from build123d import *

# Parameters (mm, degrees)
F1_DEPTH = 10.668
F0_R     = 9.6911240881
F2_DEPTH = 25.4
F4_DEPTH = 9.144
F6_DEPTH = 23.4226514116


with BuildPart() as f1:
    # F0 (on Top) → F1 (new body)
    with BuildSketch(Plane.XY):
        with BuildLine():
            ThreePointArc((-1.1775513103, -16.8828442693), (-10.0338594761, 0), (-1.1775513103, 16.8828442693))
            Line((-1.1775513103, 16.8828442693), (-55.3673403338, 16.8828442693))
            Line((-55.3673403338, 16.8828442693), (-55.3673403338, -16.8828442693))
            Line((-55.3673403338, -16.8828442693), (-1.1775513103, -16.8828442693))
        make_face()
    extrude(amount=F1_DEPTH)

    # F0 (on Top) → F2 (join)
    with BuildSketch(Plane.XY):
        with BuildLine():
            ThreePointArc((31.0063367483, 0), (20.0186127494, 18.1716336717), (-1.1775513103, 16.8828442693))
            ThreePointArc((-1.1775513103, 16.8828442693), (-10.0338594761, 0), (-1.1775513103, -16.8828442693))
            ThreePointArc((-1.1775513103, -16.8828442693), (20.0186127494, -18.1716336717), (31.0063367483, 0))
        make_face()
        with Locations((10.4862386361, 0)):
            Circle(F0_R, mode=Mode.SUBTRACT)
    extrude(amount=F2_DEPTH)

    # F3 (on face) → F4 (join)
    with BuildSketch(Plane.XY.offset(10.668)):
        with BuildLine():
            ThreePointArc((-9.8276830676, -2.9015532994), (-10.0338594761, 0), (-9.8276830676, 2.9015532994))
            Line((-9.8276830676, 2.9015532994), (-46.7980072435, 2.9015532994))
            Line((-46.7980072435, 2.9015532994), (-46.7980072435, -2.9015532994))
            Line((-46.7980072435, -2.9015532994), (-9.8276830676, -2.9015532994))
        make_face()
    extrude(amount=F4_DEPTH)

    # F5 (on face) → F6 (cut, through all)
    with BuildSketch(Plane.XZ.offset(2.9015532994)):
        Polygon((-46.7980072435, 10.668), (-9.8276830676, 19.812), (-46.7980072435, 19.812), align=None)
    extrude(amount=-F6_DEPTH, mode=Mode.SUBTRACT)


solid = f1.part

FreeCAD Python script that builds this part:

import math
import FreeCAD as App
import Part
import Sketcher
from FreeCAD import Vector
Q = App.Units.Quantity


def add_polygon(sketch, points):
    """Adds a closed chain of lines whose ends are joined by coincident constraints."""
    first, n = sketch.GeometryCount, len(points)
    for a, b in zip(points, points[1:] + points[:1]):
        sketch.addGeometry(Part.LineSegment(App.Vector(*a, 0), App.Vector(*b, 0)), False)
    for i in range(n):
        sketch.addConstraint(Sketcher.Constraint("Coincident", first + i, 2, first + (i + 1) % n, 1))

doc = App.newDocument("Part")
params = doc.addObject("Spreadsheet::Sheet", "Params")
for row, (alias, value) in enumerate([
    ("pad1_length", "0.42 in"),
    ("pad2_length", "1 in"),
    ("pad3_length", "0.36 in"),
    ("sketch4_height", "0.36 in"),
], start=1):
    params.set(f"A{row}", alias)
    params.set(f"B{row}", "=" + value)
    params.setAlias(f"B{row}", alias)

body = doc.addObject("PartDesign::Body", "Body")

# Sketch on XY plane
sketch1 = doc.addObject("Sketcher::SketchObject", "Sketch")
body.addObject(sketch1)
sketch1.AttachmentSupport = (doc.XY_Plane, [""])
sketch1.MapMode = "FlatFace"
sketch1.addGeometry([
    Part.ArcOfCircle(Part.Circle(Vector(10.486239, 0, 0), Vector(0, 0, 1), 20.520098), math.radians(124.639292), math.radians(235.360708)),
    Part.LineSegment(Vector(-1.177551, 16.882844, 0), Vector(-55.36734, 16.882844, 0)),
    Part.LineSegment(Vector(-55.36734, 16.882844, 0), Vector(-55.36734, -16.882844, 0)),
    Part.LineSegment(Vector(-55.36734, -16.882844, 0), Vector(-1.177551, -16.882844, 0)),
], False)
sketch1.addConstraint([
    Sketcher.Constraint("Coincident", 0, 1, 1, 1),
    Sketcher.Constraint("Coincident", 1, 2, 2, 1),
    Sketcher.Constraint("Coincident", 2, 2, 3, 1),
    Sketcher.Constraint("Coincident", 3, 2, 0, 2),
    Sketcher.Constraint("Horizontal", 1),
    Sketcher.Constraint("Vertical", 2),
    Sketcher.Constraint("Horizontal", 3),
    Sketcher.Constraint("Symmetric", 0, 1, 3, 2, -1),
    Sketcher.Constraint("Radius", 0, 20.520098),
    Sketcher.Constraint("DistanceX", 1, 2, 1, 1, 54.189789),
    Sketcher.Constraint("DistanceY", 2, 2, 2, 1, 33.765689),
    Sketcher.Constraint("DistanceX", -1, 1, 0, 3, 10.486239),
])
pad1 = doc.addObject("PartDesign::Pad", "Pad")
body.addObject(pad1)
pad1.Profile = sketch1
pad1.setExpression("Length", "Params.pad1_length")

# Sketch on XY plane
sketch2 = doc.addObject("Sketcher::SketchObject", "Sketch001")
body.addObject(sketch2)
sketch2.AttachmentSupport = (doc.XY_Plane, [""])
sketch2.MapMode = "FlatFace"
sketch2.addGeometry([
    Part.ArcOfCircle(Part.Circle(Vector(10.486239, 0, 0), Vector(0, 0, 1), 20.520098), math.radians(124.639292), math.radians(235.360708)),
    Part.ArcOfCircle(Part.Circle(Vector(10.486239, 0, 0), Vector(0, 0, 1), 20.520098), math.radians(-124.639292), math.radians(124.639292)),
    Part.Circle(Vector(10.486239, 0, 0), Vector(0, 0, 1), 9.691124),
], False)
sketch2.addConstraint([
    Sketcher.Constraint("Tangent", 0, 1, 1, 2),
    Sketcher.Constraint("Coincident", 1, 1, 0, 2),
    Sketcher.Constraint("Coincident", 2, 3, 0, 3),
    Sketcher.Constraint("Symmetric", 0, 1, 1, 1, -1),
    Sketcher.Constraint("Radius", 0, 20.520098),
    Sketcher.Constraint("Diameter", 2, 19.382248),
    Sketcher.Constraint("DistanceX", -1, 1, 0, 3, 10.486239),
    Sketcher.Constraint("DistanceX", 0, 1, -1, 1, 1.177551),
])
pad2 = doc.addObject("PartDesign::Pad", "Pad001")
body.addObject(pad2)
pad2.Profile = sketch2
pad2.setExpression("Length", "Params.pad2_length")

# Sketch on XY plane
sketch3 = doc.addObject("Sketcher::SketchObject", "Sketch002")
body.addObject(sketch3)
sketch3.AttachmentSupport = (doc.XY_Plane, [""])
sketch3.MapMode = "FlatFace"
sketch3.AttachmentOffset = App.Placement(Vector(0, 0, 0.42 * 25.4), App.Rotation())
sketch3.addGeometry([
    Part.ArcOfCircle(Part.Circle(Vector(10.486239, 0, 0), Vector(0, 0, 1), 20.520098), math.radians(171.871101), math.radians(188.128899)),
    Part.LineSegment(Vector(-9.827683, 2.901553, 0), Vector(-46.798007, 2.901553, 0)),
    Part.LineSegment(Vector(-46.798007, 2.901553, 0), Vector(-46.798007, -2.901553, 0)),
    Part.LineSegment(Vector(-46.798007, -2.901553, 0), Vector(-9.827683, -2.901553, 0)),
], False)
sketch3.addConstraint([
    Sketcher.Constraint("Coincident", 0, 1, 1, 1),
    Sketcher.Constraint("Coincident", 1, 2, 2, 1),
    Sketcher.Constraint("Coincident", 2, 2, 3, 1),
    Sketcher.Constraint("Coincident", 3, 2, 0, 2),
    Sketcher.Constraint("Horizontal", 1),
    Sketcher.Constraint("Vertical", 2),
    Sketcher.Constraint("Horizontal", 3),
    Sketcher.Constraint("Symmetric", 0, 1, 3, 2, -1),
    Sketcher.Constraint("Radius", 0, 20.520098),
    Sketcher.Constraint("DistanceX", 1, 2, 1, 1, 36.970324),
    Sketcher.Constraint("DistanceY", 2, 2, 2, 1, 5.803107),
    Sketcher.Constraint("DistanceX", -1, 1, 0, 3, 10.486239),
])
pad3 = doc.addObject("PartDesign::Pad", "Pad002")
body.addObject(pad3)
pad3.Profile = sketch3
pad3.setExpression("Length", "Params.pad3_length")

# Sketch on XZ plane
sketch4 = doc.addObject("Sketcher::SketchObject", "Sketch003")
body.addObject(sketch4)
sketch4.AttachmentSupport = (doc.XZ_Plane, [""])
sketch4.MapMode = "FlatFace"
sketch4.AttachmentOffset = App.Placement(Vector(0, 0, 2.901553), App.Rotation())
add_polygon(sketch4, [(-46.798007, 10.668), (-9.827683, 19.812), (-46.798007, 19.812)])  # lines 0-2
sketch4.addConstraint([
    Sketcher.Constraint("Horizontal", 1),
    Sketcher.Constraint("Vertical", 2),
    Sketcher.Constraint("DistanceY", 2, 2, 2, 1, Q("0.36 in")),
    Sketcher.Constraint("DistanceY", -1, 1, 0, 2, Q("0.78 in")),
    Sketcher.Constraint("Distance", 0, 38.084349),
    Sketcher.Constraint("DistanceX", 0, 2, -1, 1, 9.827683),
])
sketch4.setExpression("Constraints[5]", "Params.sketch4_height")
pocket1 = doc.addObject("PartDesign::Pocket", "Pocket")
body.addObject(pocket1)
pocket1.Profile = sketch4
pocket1.Type = "ThroughAll"

doc.recompute()
